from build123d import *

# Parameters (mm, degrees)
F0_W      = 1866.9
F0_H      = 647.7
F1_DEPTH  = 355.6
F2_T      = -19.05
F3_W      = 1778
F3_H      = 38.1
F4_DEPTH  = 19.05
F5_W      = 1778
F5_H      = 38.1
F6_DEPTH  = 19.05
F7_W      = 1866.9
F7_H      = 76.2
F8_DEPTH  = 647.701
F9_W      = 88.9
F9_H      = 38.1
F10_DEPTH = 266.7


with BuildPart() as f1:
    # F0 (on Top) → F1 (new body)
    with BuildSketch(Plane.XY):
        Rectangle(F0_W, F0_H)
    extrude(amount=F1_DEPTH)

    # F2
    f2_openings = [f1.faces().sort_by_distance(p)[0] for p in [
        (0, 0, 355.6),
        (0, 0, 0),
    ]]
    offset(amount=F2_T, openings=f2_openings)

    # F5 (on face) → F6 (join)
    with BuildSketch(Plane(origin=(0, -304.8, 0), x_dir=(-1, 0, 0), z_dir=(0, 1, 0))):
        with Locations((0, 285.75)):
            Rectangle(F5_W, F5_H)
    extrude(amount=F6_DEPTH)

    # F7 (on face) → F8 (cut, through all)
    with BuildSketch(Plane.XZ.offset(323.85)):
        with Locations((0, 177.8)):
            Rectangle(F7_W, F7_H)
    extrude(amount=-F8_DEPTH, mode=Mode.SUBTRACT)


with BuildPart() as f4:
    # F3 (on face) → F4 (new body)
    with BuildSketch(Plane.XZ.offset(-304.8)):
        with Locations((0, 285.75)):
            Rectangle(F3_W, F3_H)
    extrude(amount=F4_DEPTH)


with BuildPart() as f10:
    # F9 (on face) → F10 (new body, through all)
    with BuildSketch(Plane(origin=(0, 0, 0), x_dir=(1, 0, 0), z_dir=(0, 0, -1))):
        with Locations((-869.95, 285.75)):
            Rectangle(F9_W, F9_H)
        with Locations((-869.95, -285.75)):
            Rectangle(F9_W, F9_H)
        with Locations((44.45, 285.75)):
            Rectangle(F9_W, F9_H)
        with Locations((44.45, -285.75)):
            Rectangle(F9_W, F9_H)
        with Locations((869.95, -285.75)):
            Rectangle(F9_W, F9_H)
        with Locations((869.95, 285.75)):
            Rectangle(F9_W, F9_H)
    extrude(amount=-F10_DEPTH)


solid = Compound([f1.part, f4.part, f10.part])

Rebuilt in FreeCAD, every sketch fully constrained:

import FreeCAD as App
import Part
import Sketcher

V = App.Vector
Q = App.Units.Quantity


def faces_at(feature, points):
    """Names of the faces that lie closest to the given points."""
    faces = feature.Shape.Faces
    near = lambda p: min(range(len(faces)), key=lambda i: faces[i].distToShape(Part.Vertex(*p))[0])
    return sorted({f"Face{near(p) + 1}" for p in points})

doc = App.newDocument("Part")
body = doc.addObject("PartDesign::Body", "Body")
body.AllowCompound = True

sketch1 = body.newObject("Sketcher::SketchObject", "Sketch")
sketch1.AttachmentSupport = (doc.getObject("XY_Plane"), [""])
sketch1.MapMode = "FlatFace"
sketch1.addGeometry(Part.LineSegment(V(-933, 324, 0), V(-933, -324, 0)), False)
sketch1.addGeometry(Part.LineSegment(V(-933, -324, 0), V(933, -324, 0)), False)
sketch1.addGeometry(Part.LineSegment(V(933, -324, 0), V(933, 324, 0)), False)
sketch1.addGeometry(Part.LineSegment(V(933, 324, 0), V(-933, 324, 0)), False)
sketch1.addConstraint(Sketcher.Constraint("Coincident", 0, 2, 1, 1))
sketch1.addConstraint(Sketcher.Constraint("Coincident", 1, 2, 2, 1))
sketch1.addConstraint(Sketcher.Constraint("Coincident", 2, 2, 3, 1))
sketch1.addConstraint(Sketcher.Constraint("Coincident", 3, 2, 0, 1))
sketch1.addConstraint(Sketcher.Constraint("Vertical", 0))
sketch1.addConstraint(Sketcher.Constraint("Horizontal", 1))
sketch1.addConstraint(Sketcher.Constraint("Vertical", 2))
sketch1.addConstraint(Sketcher.Constraint("Horizontal", 3))
sketch1.addConstraint(Sketcher.Constraint("Symmetric", 0, 2, 2, 2, -1, 1))
sketch1.addConstraint(Sketcher.Constraint("DistanceX", 1, 1, 1, 2, Q("73.5 in")))
sketch1.addConstraint(Sketcher.Constraint("DistanceY", 0, 2, 0, 1, Q("25.5 in")))
pad1 = body.newObject("PartDesign::Pad", "Pad")
pad1.Profile = sketch1
pad1.Length = Q("14 in")
doc.recompute()

thickness = body.newObject("PartDesign::Thickness", "Thickness")
thickness.Base = (pad1, faces_at(pad1, [(0, 0, 355.6), (0, 0, 0)]))
thickness.Value = Q("0.75 in")
thickness.Reversed = True
thickness.Join = "Arc"

sketch2 = body.newObject("Sketcher::SketchObject", "Sketch001")
sketch2.AttachmentSupport = (doc.getObject("XZ_Plane"), [""])
sketch2.MapMode = "FlatFace"
sketch2.AttachmentOffset = App.Placement(V(0, 0, 12 * 25.4), App.Rotation())
sketch2.addGeometry(Part.LineSegment(V(889, 305, 0), V(889, 267, 0)), False)
sketch2.addGeometry(Part.LineSegment(V(889, 267, 0), V(-889, 267, 0)), False)
sketch2.addGeometry(Part.LineSegment(V(-889, 267, 0), V(-889, 305, 0)), False)
sketch2.addGeometry(Part.LineSegment(V(-889, 305, 0), V(889, 305, 0)), False)
sketch2.addConstraint(Sketcher.Constraint("Coincident", 0, 2, 1, 1))
sketch2.addConstraint(Sketcher.Constraint("Coincident", 1, 2, 2, 1))
sketch2.addConstraint(Sketcher.Constraint("Coincident", 2, 2, 3, 1))
sketch2.addConstraint(Sketcher.Constraint("Coincident", 3, 2, 0, 1))
sketch2.addConstraint(Sketcher.Constraint("Vertical", 0))
sketch2.addConstraint(Sketcher.Constraint("Horizontal", 1))
sketch2.addConstraint(Sketcher.Constraint("Vertical", 2))
sketch2.addConstraint(Sketcher.Constraint("Horizontal", 3))
sketch2.addConstraint(Sketcher.Constraint("DistanceX", 1, 2, 1, 1, Q("70 in")))
sketch2.addConstraint(Sketcher.Constraint("DistanceY", 0, 2, 0, 1, Q("1.5 in")))
sketch2.addConstraint(Sketcher.Constraint("DistanceX", -1, 1, 0, 2, Q("35 in")))
sketch2.addConstraint(Sketcher.Constraint("DistanceY", -1, 1, 2, 2, Q("12 in")))
pad2 = body.newObject("PartDesign::Pad", "Pad001")
pad2.Profile = sketch2
pad2.Length = Q("0.75 in")
pad2.Reversed = True

sketch3 = body.newObject("Sketcher::SketchObject", "Sketch002")
sketch3.AttachmentSupport = (doc.getObject("XZ_Plane"), [""])
sketch3.MapMode = "FlatFace"
sketch3.AttachmentOffset = App.Placement(V(0, 0, 12.75 * 25.4), App.Rotation())
sketch3.addGeometry(Part.LineSegment(V(-933, 216, 0), V(-933, 140, 0)), False)
sketch3.addGeometry(Part.LineSegment(V(-933, 140, 0), V(933, 140, 0)), False)
sketch3.addGeometry(Part.LineSegment(V(933, 140, 0), V(933, 216, 0)), False)
sketch3.addGeometry(Part.LineSegment(V(933, 216, 0), V(-933, 216, 0)), False)
sketch3.addConstraint(Sketcher.Constraint("Coincident", 0, 2, 1, 1))
sketch3.addConstraint(Sketcher.Constraint("Coincident", 1, 2, 2, 1))
sketch3.addConstraint(Sketcher.Constraint("Coincident", 2, 2, 3, 1))
sketch3.addConstraint(Sketcher.Constraint("Coincident", 3, 2, 0, 1))
sketch3.addConstraint(Sketcher.Constraint("Vertical", 0))
sketch3.addConstraint(Sketcher.Constraint("Horizontal", 1))
sketch3.addConstraint(Sketcher.Constraint("Vertical", 2))
sketch3.addConstraint(Sketcher.Constraint("Horizontal", 3))
sketch3.addConstraint(Sketcher.Constraint("DistanceY", 0, 2, 0, 1, Q("3 in")))
sketch3.addConstraint(Sketcher.Constraint("DistanceX", 1, 1, 1, 2, Q("73.5 in")))
sketch3.addConstraint(Sketcher.Constraint("DistanceY", -1, 1, 0, 2, Q("5.5 in")))
sketch3.addConstraint(Sketcher.Constraint("DistanceX", 0, 2, -1, 1, Q("36.75 in")))
pocket1 = body.newObject("PartDesign::Pocket", "Pocket")
pocket1.Profile = sketch3
pocket1.Type = "ThroughAll"
body2 = doc.addObject("PartDesign::Body", "Body001")

sketch4 = body2.newObject("Sketcher::SketchObject", "Sketch003")
sketch4.AttachmentSupport = (doc.getObject("XZ_Plane001"), [""])
sketch4.MapMode = "FlatFace"
sketch4.AttachmentOffset = App.Placement(V(0, 0, -12 * 25.4), App.Rotation())
sketch4.addGeometry(Part.LineSegment(V(-889, 305, 0), V(-889, 267, 0)), False)
sketch4.addGeometry(Part.LineSegment(V(-889, 267, 0), V(889, 267, 0)), False)
sketch4.addGeometry(Part.LineSegment(V(889, 267, 0), V(889, 305, 0)), False)
sketch4.addGeometry(Part.LineSegment(V(889, 305, 0), V(-889, 305, 0)), False)
sketch4.addConstraint(Sketcher.Constraint("Coincident", 0, 2, 1, 1))
sketch4.addConstraint(Sketcher.Constraint("Coincident", 1, 2, 2, 1))
sketch4.addConstraint(Sketcher.Constraint("Coincident", 2, 2, 3, 1))
sketch4.addConstraint(Sketcher.Constraint("Coincident", 3, 2, 0, 1))
sketch4.addConstraint(Sketcher.Constraint("Vertical", 0))
sketch4.addConstraint(Sketcher.Constraint("Horizontal", 1))
sketch4.addConstraint(Sketcher.Constraint("Vertical", 2))
sketch4.addConstraint(Sketcher.Constraint("Horizontal", 3))
sketch4.addConstraint(Sketcher.Constraint("DistanceX", 1, 1, 1, 2, Q("70 in")))
sketch4.addConstraint(Sketcher.Constraint("DistanceY", 0, 2, 0, 1, Q("1.5 in")))
sketch4.addConstraint(Sketcher.Constraint("DistanceX", 0, 2, -1, 1, Q("35 in")))
sketch4.addConstraint(Sketcher.Constraint("DistanceY", -1, 1, 2, 2, Q("12 in")))
pad3 = body2.newObject("PartDesign::Pad", "Pad002")
pad3.Profile = sketch4
pad3.Length = Q("0.75 in")
body3 = doc.addObject("PartDesign::Body", "Body002")
body3.AllowCompound = True

sketch5 = body3.newObject("Sketcher::SketchObject", "Sketch004")
sketch5.AttachmentSupport = (doc.getObject("XY_Plane002"), [""])
sketch5.MapMode = "FlatFace"
sketch5.addGeometry(Part.LineSegment(V(-914, -305, 0), V(-914, -267, 0)), False)
sketch5.addGeometry(Part.LineSegment(V(-914, -267, 0), V(-826, -267, 0)), False)
sketch5.addGeometry(Part.LineSegment(V(-826, -267, 0), V(-826, -305, 0)), False)
sketch5.addGeometry(Part.LineSegment(V(-826, -305, 0), V(-914, -305, 0)), False)
sketch5.addGeometry(Part.LineSegment(V(-914, 267, 0), V(-914, 305, 0)), False)
sketch5.addGeometry(Part.LineSegment(V(-914, 305, 0), V(-826, 305, 0)), False)
sketch5.addGeometry(Part.LineSegment(V(-826, 305, 0), V(-826, 267, 0)), False)
sketch5.addGeometry(Part.LineSegment(V(-826, 267, 0), V(-914, 267, 0)), False)
sketch5.addGeometry(Part.LineSegment(V(0, -305, 0), V(0, -267, 0)), False)
sketch5.addGeometry(Part.LineSegment(V(0, -267, 0), V(89, -267, 0)), False)
sketch5.addGeometry(Part.LineSegment(V(89, -267, 0), V(89, -305, 0)), False)
sketch5.addGeometry(Part.LineSegment(V(89, -305, 0), V(0, -305, 0)), False)
sketch5.addGeometry(Part.LineSegment(V(0, 267, 0), V(0, 305, 0)), False)
sketch5.addGeometry(Part.LineSegment(V(0, 305, 0), V(89, 305, 0)), False)
sketch5.addGeometry(Part.LineSegment(V(89, 305, 0), V(89, 267, 0)), False)
sketch5.addGeometry(Part.LineSegment(V(89, 267, 0), V(0, 267, 0)), False)
sketch5.addGeometry(Part.LineSegment(V(826, 267, 0), V(826, 305, 0)), False)
sketch5.addGeometry(Part.LineSegment(V(826, 305, 0), V(914, 305, 0)), False)
sketch5.addGeometry(Part.LineSegment(V(914, 305, 0), V(914, 267, 0)), False)
sketch5.addGeometry(Part.LineSegment(V(914, 267, 0), V(826, 267, 0)), False)
sketch5.addGeometry(Part.LineSegment(V(826, -305, 0), V(826, -267, 0)), False)
sketch5.addGeometry(Part.LineSegment(V(826, -267, 0), V(914, -267, 0)), False)
sketch5.addGeometry(Part.LineSegment(V(914, -267, 0), V(914, -305, 0)), False)
sketch5.addGeometry(Part.LineSegment(V(914, -305, 0), V(826, -305, 0)), False)
sketch5.addConstraint(Sketcher.Constraint("Coincident", 0, 2, 1, 1))
sketch5.addConstraint(Sketcher.Constraint("Coincident", 1, 2, 2, 1))
sketch5.addConstraint(Sketcher.Constraint("Coincident", 2, 2, 3, 1))
sketch5.addConstraint(Sketcher.Constraint("Coincident", 3, 2, 0, 1))
sketch5.addConstraint(Sketcher.Constraint("Coincident", 4, 2, 5, 1))
sketch5.addConstraint(Sketcher.Constraint("Coincident", 5, 2, 6, 1))
sketch5.addConstraint(Sketcher.Constraint("Coincident", 6, 2, 7, 1))
sketch5.addConstraint(Sketcher.Constraint("Coincident", 7, 2, 4, 1))
sketch5.addConstraint(Sketcher.Constraint("Coincident", 8, 2, 9, 1))
sketch5.addConstraint(Sketcher.Constraint("Coincident", 9, 2, 10, 1))
sketch5.addConstraint(Sketcher.Constraint("Coincident", 10, 2, 11, 1))
sketch5.addConstraint(Sketcher.Constraint("Coincident", 11, 2, 8, 1))
sketch5.addConstraint(Sketcher.Constraint("Coincident", 12, 2, 13, 1))
sketch5.addConstraint(Sketcher.Constraint("Coincident", 13, 2, 14, 1))
sketch5.addConstraint(Sketcher.Constraint("Coincident", 14, 2, 15, 1))
sketch5.addConstraint(Sketcher.Constraint("Coincident", 15, 2, 12, 1))
sketch5.addConstraint(Sketcher.Constraint("Coincident", 16, 2, 17, 1))
sketch5.addConstraint(Sketcher.Constraint("Coincident", 17, 2, 18, 1))
sketch5.addConstraint(Sketcher.Constraint("Coincident", 18, 2, 19, 1))
sketch5.addConstraint(Sketcher.Constraint("Coincident", 19, 2, 16, 1))
sketch5.addConstraint(Sketcher.Constraint("Coincident", 20, 2, 21, 1))
sketch5.addConstraint(Sketcher.Constraint("Coincident", 21, 2, 22, 1))
sketch5.addConstraint(Sketcher.Constraint("Coincident", 22, 2, 23, 1))
sketch5.addConstraint(Sketcher.Constraint("Coincident", 23, 2, 20, 1))
sketch5.addConstraint(Sketcher.Constraint("Vertical", 0))
sketch5.addConstraint(Sketcher.Constraint("Horizontal", 1))
sketch5.addConstraint(Sketcher.Constraint("Vertical", 2))
sketch5.addConstraint(Sketcher.Constraint("Horizontal", 3))
sketch5.addConstraint(Sketcher.Constraint("Vertical", 4))
sketch5.addConstraint(Sketcher.Constraint("Horizontal", 5))
sketch5.addConstraint(Sketcher.Constraint("Vertical", 6))
sketch5.addConstraint(Sketcher.Constraint("Horizontal", 7))
sketch5.addConstraint(Sketcher.Constraint("Vertical", 8))
sketch5.addConstraint(Sketcher.Constraint("Horizontal", 9))
sketch5.addConstraint(Sketcher.Constraint("Vertical", 10))
sketch5.addConstraint(Sketcher.Constraint("Horizontal", 11))
sketch5.addConstraint(Sketcher.Constraint("Vertical", 12))
sketch5.addConstraint(Sketcher.Constraint("Horizontal", 13))
sketch5.addConstraint(Sketcher.Constraint("Vertical", 14))
sketch5.addConstraint(Sketcher.Constraint("Horizontal", 15))
sketch5.addConstraint(Sketcher.Constraint("Vertical", 16))
sketch5.addConstraint(Sketcher.Constraint("Horizontal", 17))
sketch5.addConstraint(Sketcher.Constraint("Vertical", 18))
sketch5.addConstraint(Sketcher.Constraint("Horizontal", 19))
sketch5.addConstraint(Sketcher.Constraint("Vertical", 20))
sketch5.addConstraint(Sketcher.Constraint("Horizontal", 21))
sketch5.addConstraint(Sketcher.Constraint("Vertical", 22))
sketch5.addConstraint(Sketcher.Constraint("Horizontal", 23))
sketch5.addConstraint(Sketcher.Constraint("Symmetric", 11, 2, 12, 2, -1, 1))
sketch5.addConstraint(Sketcher.Constraint("Symmetric", 2, 2, 16, 2, -1, 1))
sketch5.addConstraint(Sketcher.Constraint("Symmetric", 0, 2, 18, 2, -1, 1))
sketch5.addConstraint(Sketcher.Constraint("Symmetric", 6, 2, 20, 2, -1, 1))
sketch5.addConstraint(Sketcher.Constraint("Symmetric", 4, 2, 22, 2, -1, 1))
sketch5.addConstraint(Sketcher.Constraint("Symmetric", 5, 2, 16, 2, -2))
sketch5.addConstraint(Sketcher.Constraint("Symmetric", 7, 2, 18, 2, -2))
sketch5.addConstraint(Sketcher.Constraint("Symmetric", 9, 2, 14, 2, -1))
sketch5.addConstraint(Sketcher.Constraint("PointOnObject", 8, 2, -2))
sketch5.addConstraint(Sketcher.Constraint("Horizontal", 1, 2, 8, 2))
sketch5.addConstraint(Sketcher.Constraint("Horizontal", 3, 2, 10, 2))
sketch5.addConstraint(Sketcher.Constraint("Equal", 7, 9))
sketch5.addConstraint(Sketcher.Constraint("DistanceX", 1, 1, 1, 2, Q("3.5 in")))
sketch5.addConstraint(Sketcher.Constraint("DistanceY", 0, 1, 0, 2, Q("1.5 in")))
sketch5.addConstraint(Sketcher.Constraint("DistanceX", 0, 2, -1, 1, Q("36 in")))
sketch5.addConstraint(Sketcher.Constraint("DistanceY", 2, 2, -1, 1, Q("12 in")))
pad4 = body3.newObject("PartDesign::Pad", "Pad003")
pad4.Profile = sketch5
pad4.Length = Q("10.5 in")

doc.recompute()
